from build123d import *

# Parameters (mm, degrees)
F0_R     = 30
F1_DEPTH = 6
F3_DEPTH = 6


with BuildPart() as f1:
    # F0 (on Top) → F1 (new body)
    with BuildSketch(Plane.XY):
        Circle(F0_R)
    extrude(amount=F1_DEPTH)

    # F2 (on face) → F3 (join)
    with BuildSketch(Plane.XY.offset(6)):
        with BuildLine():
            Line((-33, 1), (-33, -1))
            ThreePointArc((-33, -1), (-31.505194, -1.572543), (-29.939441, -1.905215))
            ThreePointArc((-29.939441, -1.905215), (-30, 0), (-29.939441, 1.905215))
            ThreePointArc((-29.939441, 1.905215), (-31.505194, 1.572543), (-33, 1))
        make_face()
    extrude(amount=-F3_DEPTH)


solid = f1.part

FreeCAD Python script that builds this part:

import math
import FreeCAD as App
import Part
import Sketcher

V = App.Vector
Q = App.Units.Quantity

doc = App.newDocument("Part")
params = doc.addObject("Spreadsheet::Sheet", "Params")
for row, (alias, value) in enumerate([
    ("sketch1_diameter", "60 mm"),
    ("pad1_length", "6 mm"),
    ("sketch2_height", "2 mm"),
    ("pad2_length", "6 mm"),
], start=1):
    params.set(f"A{row}", alias)
    params.set(f"B{row}", "=" + value)
    params.setAlias(f"B{row}", alias)

body = doc.addObject("PartDesign::Body", "Body")

sketch1 = doc.addObject("Sketcher::SketchObject", "Sketch")
body.addObject(sketch1)
sketch1.AttachmentSupport = (doc.XY_Plane, [""])
sketch1.MapMode = "FlatFace"
sketch1.addGeometry(Part.Circle(V(0, 0, 0), V(0, 0, 1), 30), False)
sketch1.addConstraint(Sketcher.Constraint("Coincident", 0, 3, -1, 1))
sketch1.addConstraint(Sketcher.Constraint("Diameter", 0, Q("60 mm")))
sketch1.setExpression("Constraints[1]", "Params.sketch1_diameter")
pad1 = doc.addObject("PartDesign::Pad", "Pad")
body.addObject(pad1)
pad1.Profile = sketch1
pad1.setExpression("Length", "Params.pad1_length")

sketch2 = doc.addObject("Sketcher::SketchObject", "Sketch001")
body.addObject(sketch2)
sketch2.AttachmentSupport = (doc.XY_Plane, [""])
sketch2.MapMode = "FlatFace"
sketch2.AttachmentOffset = App.Placement(V(0, 0, 6), App.Rotation())
sketch2.addGeometry(Part.LineSegment(V(-33, 1, 0), V(-33, -1, 0)), False)
sketch2.addGeometry(Part.ArcOfCircle(Part.Circle(V(-28.6, 8.2, 0), V(0, 0, 1), 10.2), math.radians(-115.44), math.radians(-97.51)), False)
sketch2.addGeometry(Part.ArcOfCircle(Part.Circle(V(0, 0, 0), V(0, 0, 1), 30), math.radians(176.36), math.radians(183.64)), False)
sketch2.addGeometry(Part.ArcOfCircle(Part.Circle(V(-28.6, -8.2, 0), V(0, 0, 1), 10.2), math.radians(97.51), math.radians(115.44)), False)
sketch2.addConstraint(Sketcher.Constraint("Coincident", 0, 2, 1, 1))
sketch2.addConstraint(Sketcher.Constraint("Coincident", 1, 2, 2, 2))
sketch2.addConstraint(Sketcher.Constraint("Coincident", 2, 1, 3, 1))
sketch2.addConstraint(Sketcher.Constraint("Coincident", 3, 2, 0, 1))
sketch2.addConstraint(Sketcher.Constraint("Vertical", 0))
sketch2.addConstraint(Sketcher.Constraint("Equal", 1, 3))
sketch2.addConstraint(Sketcher.Constraint("Symmetric", 1, 3, 3, 3, -1))
sketch2.addConstraint(Sketcher.Constraint("PointOnObject", 2, 3, -1))
sketch2.addConstraint(Sketcher.Constraint("DistanceY", 0, 2, 0, 1, Q("2 mm")))
sketch2.addConstraint(Sketcher.Constraint("DistanceX", 0, 2, -1, 1, Q("33 mm")))
sketch2.addConstraint(Sketcher.Constraint("Radius", 1, Q("10.243144 mm")))
sketch2.addConstraint(Sketcher.Constraint("Radius", 2, Q("29.999765 mm")))
sketch2.addConstraint(Sketcher.Constraint("DistanceX", 1, 2, -1, 1, Q("29.939441 mm")))
sketch2.addConstraint(Sketcher.Constraint("DistanceY", 3, 3, 1, 2, Q("6.344761 mm")))
sketch2.setExpression("Constraints[8]", "Params.sketch2_height")
pad2 = doc.addObject("PartDesign::Pad", "Pad001")
body.addObject(pad2)
pad2.Profile = sketch2
pad2.setExpression("Length", "Params.pad2_length")
pad2.Reversed = True

doc.recompute()
